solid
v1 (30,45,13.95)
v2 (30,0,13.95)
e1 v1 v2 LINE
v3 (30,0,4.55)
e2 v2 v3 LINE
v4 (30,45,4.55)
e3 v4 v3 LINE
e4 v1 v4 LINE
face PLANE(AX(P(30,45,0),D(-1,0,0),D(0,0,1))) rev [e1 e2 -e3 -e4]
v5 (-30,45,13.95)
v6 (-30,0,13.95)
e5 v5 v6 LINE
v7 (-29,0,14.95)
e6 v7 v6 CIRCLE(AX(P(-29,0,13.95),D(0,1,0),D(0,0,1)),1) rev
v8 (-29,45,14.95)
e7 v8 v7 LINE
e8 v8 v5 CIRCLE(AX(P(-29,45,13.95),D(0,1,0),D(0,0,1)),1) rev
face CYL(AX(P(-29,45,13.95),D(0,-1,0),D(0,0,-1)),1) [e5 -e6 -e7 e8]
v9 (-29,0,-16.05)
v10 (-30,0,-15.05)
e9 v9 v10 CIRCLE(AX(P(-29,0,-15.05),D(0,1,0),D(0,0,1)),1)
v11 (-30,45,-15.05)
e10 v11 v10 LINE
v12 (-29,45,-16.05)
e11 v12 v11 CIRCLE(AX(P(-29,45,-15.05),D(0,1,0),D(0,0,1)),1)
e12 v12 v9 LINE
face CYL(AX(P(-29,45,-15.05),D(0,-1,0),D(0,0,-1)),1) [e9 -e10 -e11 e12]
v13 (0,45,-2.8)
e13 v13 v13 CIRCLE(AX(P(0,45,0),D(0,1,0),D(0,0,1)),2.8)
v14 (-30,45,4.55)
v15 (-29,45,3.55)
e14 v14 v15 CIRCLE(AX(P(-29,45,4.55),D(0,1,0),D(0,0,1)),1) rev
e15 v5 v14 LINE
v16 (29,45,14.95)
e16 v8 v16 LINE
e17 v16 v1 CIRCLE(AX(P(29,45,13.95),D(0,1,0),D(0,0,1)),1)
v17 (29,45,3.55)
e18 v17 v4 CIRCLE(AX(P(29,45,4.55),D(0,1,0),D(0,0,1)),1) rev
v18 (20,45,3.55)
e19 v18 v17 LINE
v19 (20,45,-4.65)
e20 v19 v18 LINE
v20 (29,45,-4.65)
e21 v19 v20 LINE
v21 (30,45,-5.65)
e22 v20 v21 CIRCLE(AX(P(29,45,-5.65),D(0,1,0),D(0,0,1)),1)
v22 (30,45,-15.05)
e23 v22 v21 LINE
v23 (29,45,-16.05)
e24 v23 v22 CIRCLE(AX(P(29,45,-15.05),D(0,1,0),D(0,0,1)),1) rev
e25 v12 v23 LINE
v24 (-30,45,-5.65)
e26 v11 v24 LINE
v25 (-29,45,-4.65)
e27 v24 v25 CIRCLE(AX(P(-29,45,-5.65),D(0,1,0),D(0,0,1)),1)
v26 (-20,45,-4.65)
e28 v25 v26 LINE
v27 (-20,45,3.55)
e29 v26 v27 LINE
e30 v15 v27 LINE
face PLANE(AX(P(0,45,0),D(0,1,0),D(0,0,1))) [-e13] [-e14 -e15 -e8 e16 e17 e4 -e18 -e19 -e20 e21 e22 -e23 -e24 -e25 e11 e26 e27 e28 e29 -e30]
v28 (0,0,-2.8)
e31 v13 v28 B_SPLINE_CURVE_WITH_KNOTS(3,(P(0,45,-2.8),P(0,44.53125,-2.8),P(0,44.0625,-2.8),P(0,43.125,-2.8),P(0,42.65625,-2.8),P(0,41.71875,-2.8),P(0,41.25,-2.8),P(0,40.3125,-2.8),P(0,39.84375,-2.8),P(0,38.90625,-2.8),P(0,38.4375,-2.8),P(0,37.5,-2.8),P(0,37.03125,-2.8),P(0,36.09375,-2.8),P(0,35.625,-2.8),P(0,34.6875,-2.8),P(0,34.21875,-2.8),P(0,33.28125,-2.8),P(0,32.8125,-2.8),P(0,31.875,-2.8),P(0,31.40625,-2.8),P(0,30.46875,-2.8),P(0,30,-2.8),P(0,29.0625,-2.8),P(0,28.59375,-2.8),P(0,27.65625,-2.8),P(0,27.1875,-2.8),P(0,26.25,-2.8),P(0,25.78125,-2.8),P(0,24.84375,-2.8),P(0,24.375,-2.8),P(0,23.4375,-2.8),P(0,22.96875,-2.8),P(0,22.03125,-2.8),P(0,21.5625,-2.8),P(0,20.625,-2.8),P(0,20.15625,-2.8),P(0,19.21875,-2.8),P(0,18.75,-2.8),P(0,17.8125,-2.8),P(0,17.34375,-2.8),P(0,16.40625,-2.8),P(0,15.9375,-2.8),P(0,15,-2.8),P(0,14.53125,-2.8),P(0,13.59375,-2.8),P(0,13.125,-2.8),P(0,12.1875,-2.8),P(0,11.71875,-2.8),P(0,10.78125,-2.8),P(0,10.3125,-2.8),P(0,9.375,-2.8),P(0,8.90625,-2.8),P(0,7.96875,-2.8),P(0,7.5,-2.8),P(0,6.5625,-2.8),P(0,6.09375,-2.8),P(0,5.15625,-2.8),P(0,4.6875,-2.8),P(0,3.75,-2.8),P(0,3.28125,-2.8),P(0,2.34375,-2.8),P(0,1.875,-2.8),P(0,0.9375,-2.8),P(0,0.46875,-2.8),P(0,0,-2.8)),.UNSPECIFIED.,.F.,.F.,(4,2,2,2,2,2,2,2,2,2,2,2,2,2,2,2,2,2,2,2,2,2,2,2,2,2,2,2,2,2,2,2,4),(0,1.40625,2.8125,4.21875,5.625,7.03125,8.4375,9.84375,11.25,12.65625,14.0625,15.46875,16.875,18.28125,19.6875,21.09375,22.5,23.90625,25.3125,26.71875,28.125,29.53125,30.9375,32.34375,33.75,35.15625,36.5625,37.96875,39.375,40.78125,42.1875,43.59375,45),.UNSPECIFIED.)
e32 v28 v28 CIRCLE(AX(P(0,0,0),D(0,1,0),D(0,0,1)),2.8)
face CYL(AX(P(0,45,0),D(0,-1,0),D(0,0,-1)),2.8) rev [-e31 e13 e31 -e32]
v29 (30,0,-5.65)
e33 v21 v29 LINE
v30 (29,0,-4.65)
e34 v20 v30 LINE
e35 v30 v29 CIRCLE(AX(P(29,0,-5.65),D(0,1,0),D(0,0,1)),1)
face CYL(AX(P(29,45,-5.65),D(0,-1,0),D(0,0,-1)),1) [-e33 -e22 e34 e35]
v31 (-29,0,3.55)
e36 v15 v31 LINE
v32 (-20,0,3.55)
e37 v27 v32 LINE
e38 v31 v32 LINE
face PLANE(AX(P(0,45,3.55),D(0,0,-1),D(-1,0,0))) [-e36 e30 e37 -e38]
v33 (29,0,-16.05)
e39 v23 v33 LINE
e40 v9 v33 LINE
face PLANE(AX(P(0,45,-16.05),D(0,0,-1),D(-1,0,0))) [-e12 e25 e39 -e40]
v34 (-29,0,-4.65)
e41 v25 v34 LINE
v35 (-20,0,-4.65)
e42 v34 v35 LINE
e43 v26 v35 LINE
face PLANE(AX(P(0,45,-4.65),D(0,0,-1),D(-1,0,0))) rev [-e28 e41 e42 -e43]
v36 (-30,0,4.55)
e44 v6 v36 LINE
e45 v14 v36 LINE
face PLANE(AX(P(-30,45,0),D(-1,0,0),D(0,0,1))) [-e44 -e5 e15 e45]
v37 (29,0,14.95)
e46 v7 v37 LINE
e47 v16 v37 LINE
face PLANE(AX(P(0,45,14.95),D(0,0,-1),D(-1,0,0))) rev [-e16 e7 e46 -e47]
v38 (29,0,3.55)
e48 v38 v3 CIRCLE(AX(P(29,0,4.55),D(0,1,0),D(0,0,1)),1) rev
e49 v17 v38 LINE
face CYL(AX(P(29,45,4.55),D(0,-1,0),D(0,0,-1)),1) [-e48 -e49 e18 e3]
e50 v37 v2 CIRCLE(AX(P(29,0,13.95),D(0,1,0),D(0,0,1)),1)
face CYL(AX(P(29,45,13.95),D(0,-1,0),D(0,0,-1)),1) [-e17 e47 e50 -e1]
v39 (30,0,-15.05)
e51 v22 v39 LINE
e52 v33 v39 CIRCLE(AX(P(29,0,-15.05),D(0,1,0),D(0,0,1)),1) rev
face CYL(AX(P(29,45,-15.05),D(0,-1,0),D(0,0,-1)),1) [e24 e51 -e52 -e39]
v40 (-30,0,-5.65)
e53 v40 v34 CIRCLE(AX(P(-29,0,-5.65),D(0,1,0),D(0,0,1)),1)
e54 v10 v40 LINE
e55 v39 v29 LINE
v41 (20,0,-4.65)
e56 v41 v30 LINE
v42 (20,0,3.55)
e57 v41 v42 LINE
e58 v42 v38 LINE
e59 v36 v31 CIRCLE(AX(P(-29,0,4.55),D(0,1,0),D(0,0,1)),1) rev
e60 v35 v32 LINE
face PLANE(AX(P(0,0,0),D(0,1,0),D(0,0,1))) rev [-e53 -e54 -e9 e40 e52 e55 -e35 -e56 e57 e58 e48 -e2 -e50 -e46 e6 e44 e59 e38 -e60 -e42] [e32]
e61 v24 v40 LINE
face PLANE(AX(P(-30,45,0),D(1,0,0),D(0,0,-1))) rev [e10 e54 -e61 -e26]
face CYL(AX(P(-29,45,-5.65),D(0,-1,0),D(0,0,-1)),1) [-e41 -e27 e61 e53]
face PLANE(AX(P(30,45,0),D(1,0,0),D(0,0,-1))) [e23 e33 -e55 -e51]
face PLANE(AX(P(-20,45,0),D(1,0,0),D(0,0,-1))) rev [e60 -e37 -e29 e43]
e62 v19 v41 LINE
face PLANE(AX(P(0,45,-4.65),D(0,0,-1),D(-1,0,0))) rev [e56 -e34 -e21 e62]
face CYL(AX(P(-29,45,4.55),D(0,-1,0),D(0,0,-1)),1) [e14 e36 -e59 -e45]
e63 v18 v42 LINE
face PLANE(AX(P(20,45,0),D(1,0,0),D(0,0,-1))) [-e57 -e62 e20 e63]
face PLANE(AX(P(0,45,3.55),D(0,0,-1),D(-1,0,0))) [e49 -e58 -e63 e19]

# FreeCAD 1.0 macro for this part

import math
import FreeCAD as App
import Part
import Sketcher
from FreeCAD import Vector

doc = App.newDocument("Part")
body = doc.addObject("PartDesign::Body", "Body")

sketch1 = body.newObject("Sketcher::SketchObject", "Sketch")
sketch1.AttachmentSupport = (doc.getObject("XZ_Plane"), [""])
sketch1.MapMode = "FlatFace"
sketch1.addGeometry([
    Part.LineSegment(Vector(20, 3.5, 0), Vector(20, -4.7, 0)),
    Part.LineSegment(Vector(20, -4.7, 0), Vector(29, -4.7, 0)),
    Part.ArcOfCircle(Part.Circle(Vector(29, -5.7, 0), Vector(0, 0, 1), 1), math.radians(0), math.radians(90)),
    Part.LineSegment(Vector(30, -5.7, 0), Vector(30, -15.1, 0)),
    Part.ArcOfCircle(Part.Circle(Vector(29, -15, 0), Vector(0, 0, 1), 1), math.radians(-90), math.radians(0)),
    Part.LineSegment(Vector(29, -16.1, 0), Vector(-29, -16.1, 0)),
    Part.ArcOfCircle(Part.Circle(Vector(-29, -15, 0), Vector(0, 0, 1), 1), math.radians(-180), math.radians(-90)),
    Part.LineSegment(Vector(-30, -15.1, 0), Vector(-30, -5.7, 0)),
    Part.ArcOfCircle(Part.Circle(Vector(-29, -5.7, 0), Vector(0, 0, 1), 1), math.radians(90), math.radians(180)),
    Part.LineSegment(Vector(-29, -4.7, 0), Vector(-20, -4.7, 0)),
    Part.LineSegment(Vector(-20, -4.7, 0), Vector(-20, 3.5, 0)),
    Part.LineSegment(Vector(-20, 3.5, 0), Vector(-29, 3.5, 0)),
    Part.ArcOfCircle(Part.Circle(Vector(-29, 4.6, 0), Vector(0, 0, 1), 1), math.radians(-180), math.radians(-90)),
    Part.LineSegment(Vector(-30, 4.5, 0), Vector(-30, 13.9, 0)),
    Part.ArcOfCircle(Part.Circle(Vector(-29, 13.9, 0), Vector(0, 0, 1), 1), math.radians(90), math.radians(180)),
    Part.LineSegment(Vector(-29, 14.9, 0), Vector(29, 14.9, 0)),
    Part.ArcOfCircle(Part.Circle(Vector(29, 13.9, 0), Vector(0, 0, 1), 1), math.radians(0), math.radians(90)),
    Part.LineSegment(Vector(30, 13.9, 0), Vector(30, 4.5, 0)),
    Part.ArcOfCircle(Part.Circle(Vector(29, 4.6, 0), Vector(0, 0, 1), 1), math.radians(-90), math.radians(0)),
    Part.LineSegment(Vector(29, 3.5, 0), Vector(20, 3.5, 0)),
    Part.Circle(Vector(0, 0, 0), Vector(0, 0, 1), 2.8),
], False)
sketch1.addConstraint([
    Sketcher.Constraint("Coincident", 0, 2, 1, 1),
    Sketcher.Constraint("Tangent", 1, 2, 2, 2),
    Sketcher.Constraint("Tangent", 2, 1, 3, 1),
    Sketcher.Constraint("Tangent", 3, 2, 4, 2),
    Sketcher.Constraint("Tangent", 4, 1, 5, 1),
    Sketcher.Constraint("Tangent", 5, 2, 6, 2),
    Sketcher.Constraint("Tangent", 6, 1, 7, 1),
    Sketcher.Constraint("Tangent", 7, 2, 8, 2),
    Sketcher.Constraint("Tangent", 8, 1, 9, 1),
    Sketcher.Constraint("Coincident", 9, 2, 10, 1),
    Sketcher.Constraint("Coincident", 10, 2, 11, 1),
    Sketcher.Constraint("Tangent", 11, 2, 12, 2),
    Sketcher.Constraint("Tangent", 12, 1, 13, 1),
    Sketcher.Constraint("Tangent", 13, 2, 14, 2),
    Sketcher.Constraint("Tangent", 14, 1, 15, 1),
    Sketcher.Constraint("Tangent", 15, 2, 16, 2),
    Sketcher.Constraint("Tangent", 16, 1, 17, 1),
    Sketcher.Constraint("Tangent", 17, 2, 18, 2),
    Sketcher.Constraint("Tangent", 18, 1, 19, 1),
    Sketcher.Constraint("Coincident", 19, 2, 0, 1),
    Sketcher.Constraint("Vertical", 0),
    Sketcher.Constraint("Horizontal", 1),
    Sketcher.Constraint("Vertical", 3),
    Sketcher.Constraint("Horizontal", 5),
    Sketcher.Constraint("Vertical", 7),
    Sketcher.Constraint("Horizontal", 9),
    Sketcher.Constraint("Vertical", 10),
    Sketcher.Constraint("Horizontal", 11),
    Sketcher.Constraint("Vertical", 13),
    Sketcher.Constraint("Horizontal", 15),
    Sketcher.Constraint("Vertical", 17),
    Sketcher.Constraint("Horizontal", 19),
    Sketcher.Constraint("Coincident", 20, 3, -1, 1),
    Sketcher.Constraint("Equal", 2, 4),
    Sketcher.Constraint("Equal", 4, 6),
    Sketcher.Constraint("Equal", 6, 8),
    Sketcher.Constraint("Equal", 8, 12),
    Sketcher.Constraint("Equal", 12, 14),
    Sketcher.Constraint("Equal", 14, 16),
    Sketcher.Constraint("Equal", 16, 18),
    Sketcher.Constraint("Symmetric", 2, 3, 8, 3, -2),
    Sketcher.Constraint("Symmetric", 12, 3, 18, 3, -2),
    Sketcher.Constraint("Vertical", 8, 3, 12, 3),
    Sketcher.Constraint("Equal", 1, 9),
    Sketcher.Constraint("Equal", 7, 13),
    Sketcher.Constraint("Radius", 2, 1.0),
    Sketcher.Constraint("Diameter", 20, 5.6),
    Sketcher.Constraint("DistanceX", 1, 1, 1, 2, 9.0),
    Sketcher.Constraint("DistanceX", 5, 2, 5, 1, 58.0),
    Sketcher.Constraint("DistanceY", 0, 2, 0, 1, 8.2),
    Sketcher.Constraint("DistanceY", 3, 2, 3, 1, 9.4),
    Sketcher.Constraint("DistanceY", 2, 3, -1, 1, 5.65),
])
pad1 = body.newObject("PartDesign::Pad", "Pad")
pad1.Profile = sketch1
pad1.Length = 45
pad1.Reversed = True

doc.recompute()
